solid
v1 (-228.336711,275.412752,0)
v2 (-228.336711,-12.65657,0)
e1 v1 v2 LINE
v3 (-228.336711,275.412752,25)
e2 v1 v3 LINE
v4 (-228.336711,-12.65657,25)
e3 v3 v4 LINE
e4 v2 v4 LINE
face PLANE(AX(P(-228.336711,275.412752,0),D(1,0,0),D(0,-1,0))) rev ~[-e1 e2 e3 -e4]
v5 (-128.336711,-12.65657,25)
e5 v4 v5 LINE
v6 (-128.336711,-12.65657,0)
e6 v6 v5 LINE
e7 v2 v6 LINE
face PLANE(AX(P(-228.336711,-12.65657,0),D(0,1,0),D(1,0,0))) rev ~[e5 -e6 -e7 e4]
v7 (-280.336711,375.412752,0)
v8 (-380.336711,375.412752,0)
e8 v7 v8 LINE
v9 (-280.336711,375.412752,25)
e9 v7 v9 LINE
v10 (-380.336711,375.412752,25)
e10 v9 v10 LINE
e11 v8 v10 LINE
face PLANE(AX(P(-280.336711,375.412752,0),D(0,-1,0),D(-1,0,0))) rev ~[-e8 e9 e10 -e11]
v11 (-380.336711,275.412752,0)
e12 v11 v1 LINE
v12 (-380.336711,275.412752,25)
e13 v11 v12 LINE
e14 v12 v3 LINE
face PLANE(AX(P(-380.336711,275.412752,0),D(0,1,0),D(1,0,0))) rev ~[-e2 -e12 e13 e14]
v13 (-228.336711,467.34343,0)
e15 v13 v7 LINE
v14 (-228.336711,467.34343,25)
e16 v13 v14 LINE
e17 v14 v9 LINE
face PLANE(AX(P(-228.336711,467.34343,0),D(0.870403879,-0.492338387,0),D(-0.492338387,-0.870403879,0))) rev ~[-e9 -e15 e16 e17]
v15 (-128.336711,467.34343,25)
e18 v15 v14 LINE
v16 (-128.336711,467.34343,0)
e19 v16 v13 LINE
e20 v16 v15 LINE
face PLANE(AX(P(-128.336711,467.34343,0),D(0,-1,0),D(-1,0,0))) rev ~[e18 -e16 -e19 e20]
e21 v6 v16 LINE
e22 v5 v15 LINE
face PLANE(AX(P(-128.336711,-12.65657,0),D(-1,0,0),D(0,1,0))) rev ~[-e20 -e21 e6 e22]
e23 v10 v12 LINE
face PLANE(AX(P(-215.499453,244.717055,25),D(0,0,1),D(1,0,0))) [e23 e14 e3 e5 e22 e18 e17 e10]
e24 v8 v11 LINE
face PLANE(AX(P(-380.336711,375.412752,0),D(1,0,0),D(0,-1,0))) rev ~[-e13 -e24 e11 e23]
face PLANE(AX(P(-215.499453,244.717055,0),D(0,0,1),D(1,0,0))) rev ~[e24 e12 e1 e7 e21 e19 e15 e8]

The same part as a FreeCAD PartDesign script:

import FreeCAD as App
import Part
import Sketcher
Q = App.Units.Quantity


def add_polygon(sketch, points):
    """Adds a closed chain of lines whose ends are joined by coincident constraints."""
    first, n = sketch.GeometryCount, len(points)
    for a, b in zip(points, points[1:] + points[:1]):
        sketch.addGeometry(Part.LineSegment(App.Vector(*a, 0), App.Vector(*b, 0)), False)
    for i in range(n):
        sketch.addConstraint(Sketcher.Constraint("Coincident", first + i, 2, first + (i + 1) % n, 1))

doc = App.newDocument("Part")
body = doc.addObject("PartDesign::Body", "Body")

sketch1 = body.newObject("Sketcher::SketchObject", "Sketch")
sketch1.AttachmentSupport = (doc.getObject("XY_Plane"), [""])
sketch1.MapMode = "FlatFace"
add_polygon(sketch1, [(-128.336711, 467.34343), (-228.336711, 467.34343), (-280.336711, 375.412752), (-380.336711, 375.412752), (-380.336711, 275.412752), (-228.336711, 275.412752), (-228.336711, -12.65657), (-128.336711, -12.65657)])
sketch1.addConstraint(Sketcher.Constraint("Horizontal", 0))
sketch1.addConstraint(Sketcher.Constraint("Horizontal", 2))
sketch1.addConstraint(Sketcher.Constraint("Vertical", 3))
sketch1.addConstraint(Sketcher.Constraint("Horizontal", 4))
sketch1.addConstraint(Sketcher.Constraint("Vertical", 5))
sketch1.addConstraint(Sketcher.Constraint("Horizontal", 6))
sketch1.addConstraint(Sketcher.Constraint("Vertical", 7))
sketch1.addConstraint(Sketcher.Constraint("Vertical", 0, 2, 4, 2))
sketch1.addConstraint(Sketcher.Constraint("Equal", 0, 2))
sketch1.addConstraint(Sketcher.Constraint("Equal", 6, 3))
sketch1.addConstraint(Sketcher.Constraint("DistanceX", 0, 2, 0, 1, Q("100 mm")))
sketch1.addConstraint(Sketcher.Constraint("DistanceX", 4, 1, 4, 2, Q("152 mm")))
sketch1.addConstraint(Sketcher.Constraint("DistanceY", 7, 1, 7, 2, Q("480 mm")))
sketch1.addConstraint(Sketcher.Constraint("DistanceY", 5, 2, 5, 1, Q("288.069322 mm")))
sketch1.addConstraint(Sketcher.Constraint("DistanceX", 0, 2, -1, 1, Q("228.336711 mm")))
sketch1.addConstraint(Sketcher.Constraint("DistanceY", -1, 1, 0, 2, Q("467.34343 mm")))
pad1 = body.newObject("PartDesign::Pad", "Pad")
pad1.Profile = sketch1
pad1.Length = 25

sketch2 = body.newObject("Sketcher::SketchObject", "Sketch001")
sketch2.AttachmentSupport = (doc.getObject("XY_Plane"), [""])
sketch2.MapMode = "FlatFace"
add_polygon(sketch2, [(-128.336711, 467.34343), (-228.336711, 467.34343), (-280.336711, 375.412752), (-380.336711, 375.412752), (-380.336711, 275.412752), (-228.336711, 275.412752), (-228.336711, -12.65657), (-128.336711, -12.65657)])
sketch2.addConstraint(Sketcher.Constraint("Horizontal", 0))
sketch2.addConstraint(Sketcher.Constraint("Horizontal", 2))
sketch2.addConstraint(Sketcher.Constraint("Vertical", 3))
sketch2.addConstraint(Sketcher.Constraint("Horizontal", 4))
sketch2.addConstraint(Sketcher.Constraint("Vertical", 5))
sketch2.addConstraint(Sketcher.Constraint("Horizontal", 6))
sketch2.addConstraint(Sketcher.Constraint("Vertical", 7))
sketch2.addConstraint(Sketcher.Constraint("Vertical", 0, 2, 4, 2))
sketch2.addConstraint(Sketcher.Constraint("Equal", 0, 2))
sketch2.addConstraint(Sketcher.Constraint("Equal", 6, 3))
sketch2.addConstraint(Sketcher.Constraint("DistanceX", 0, 2, 0, 1, Q("100 mm")))
sketch2.addConstraint(Sketcher.Constraint("DistanceX", 4, 1, 4, 2, Q("152 mm")))
sketch2.addConstraint(Sketcher.Constraint("DistanceY", 7, 1, 7, 2, Q("480 mm")))
sketch2.addConstraint(Sketcher.Constraint("DistanceY", 5, 2, 5, 1, Q("288.069322 mm")))
sketch2.addConstraint(Sketcher.Constraint("DistanceX", 0, 2, -1, 1, Q("228.336711 mm")))
sketch2.addConstraint(Sketcher.Constraint("DistanceY", -1, 1, 0, 2, Q("467.34343 mm")))
pad2 = body.newObject("PartDesign::Pad", "Pad001")
pad2.Profile = sketch2
pad2.Length = 25

sketch3 = body.newObject("Sketcher::SketchObject", "Sketch002")
sketch3.AttachmentSupport = (doc.getObject("XY_Plane"), [""])
sketch3.MapMode = "FlatFace"
add_polygon(sketch3, [(-128.336711, 467.34343), (-228.336711, 467.34343), (-280.336711, 375.412752), (-380.336711, 375.412752), (-380.336711, 275.412752), (-228.336711, 275.412752), (-228.336711, -12.65657), (-128.336711, -12.65657)])
sketch3.addConstraint(Sketcher.Constraint("Horizontal", 0))
sketch3.addConstraint(Sketcher.Constraint("Horizontal", 2))
sketch3.addConstraint(Sketcher.Constraint("Vertical", 3))
sketch3.addConstraint(Sketcher.Constraint("Horizontal", 4))
sketch3.addConstraint(Sketcher.Constraint("Vertical", 5))
sketch3.addConstraint(Sketcher.Constraint("Horizontal", 6))
sketch3.addConstraint(Sketcher.Constraint("Vertical", 7))
sketch3.addConstraint(Sketcher.Constraint("Vertical", 0, 2, 4, 2))
sketch3.addConstraint(Sketcher.Constraint("Equal", 0, 2))
sketch3.addConstraint(Sketcher.Constraint("Equal", 6, 3))
sketch3.addConstraint(Sketcher.Constraint("DistanceX", 0, 2, 0, 1, Q("100 mm")))
sketch3.addConstraint(Sketcher.Constraint("DistanceX", 4, 1, 4, 2, Q("152 mm")))
sketch3.addConstraint(Sketcher.Constraint("DistanceY", 7, 1, 7, 2, Q("480 mm")))
sketch3.addConstraint(Sketcher.Constraint("DistanceY", 5, 2, 5, 1, Q("288.069322 mm")))
sketch3.addConstraint(Sketcher.Constraint("DistanceX", 0, 2, -1, 1, Q("228.336711 mm")))
sketch3.addConstraint(Sketcher.Constraint("DistanceY", -1, 1, 0, 2, Q("467.34343 mm")))
pad3 = body.newObject("PartDesign::Pad", "Pad002")
pad3.Profile = sketch3
pad3.Length = 25

sketch4 = body.newObject("Sketcher::SketchObject", "Sketch003")
sketch4.AttachmentSupport = (doc.getObject("XY_Plane"), [""])
sketch4.MapMode = "FlatFace"
add_polygon(sketch4, [(-128.336711, 467.34343), (-228.336711, 467.34343), (-280.336711, 375.412752), (-380.336711, 375.412752), (-380.336711, 275.412752), (-228.336711, 275.412752), (-228.336711, -12.65657), (-128.336711, -12.65657)])
sketch4.addConstraint(Sketcher.Constraint("Horizontal", 0))
sketch4.addConstraint(Sketcher.Constraint("Horizontal", 2))
sketch4.addConstraint(Sketcher.Constraint("Vertical", 3))
sketch4.addConstraint(Sketcher.Constraint("Horizontal", 4))
sketch4.addConstraint(Sketcher.Constraint("Vertical", 5))
sketch4.addConstraint(Sketcher.Constraint("Horizontal", 6))
sketch4.addConstraint(Sketcher.Constraint("Vertical", 7))
sketch4.addConstraint(Sketcher.Constraint("Vertical", 0, 2, 4, 2))
sketch4.addConstraint(Sketcher.Constraint("Equal", 0, 2))
sketch4.addConstraint(Sketcher.Constraint("Equal", 6, 3))
sketch4.addConstraint(Sketcher.Constraint("DistanceX", 0, 2, 0, 1, Q("100 mm")))
sketch4.addConstraint(Sketcher.Constraint("DistanceX", 4, 1, 4, 2, Q("152 mm")))
sketch4.addConstraint(Sketcher.Constraint("DistanceY", 7, 1, 7, 2, Q("480 mm")))
sketch4.addConstraint(Sketcher.Constraint("DistanceY", 5, 2, 5, 1, Q("288.069322 mm")))
sketch4.addConstraint(Sketcher.Constraint("DistanceX", 0, 2, -1, 1, Q("228.336711 mm")))
sketch4.addConstraint(Sketcher.Constraint("DistanceY", -1, 1, 0, 2, Q("467.34343 mm")))
pad4 = body.newObject("PartDesign::Pad", "Pad003")
pad4.Profile = sketch4
pad4.Length = 25

doc.recompute()
